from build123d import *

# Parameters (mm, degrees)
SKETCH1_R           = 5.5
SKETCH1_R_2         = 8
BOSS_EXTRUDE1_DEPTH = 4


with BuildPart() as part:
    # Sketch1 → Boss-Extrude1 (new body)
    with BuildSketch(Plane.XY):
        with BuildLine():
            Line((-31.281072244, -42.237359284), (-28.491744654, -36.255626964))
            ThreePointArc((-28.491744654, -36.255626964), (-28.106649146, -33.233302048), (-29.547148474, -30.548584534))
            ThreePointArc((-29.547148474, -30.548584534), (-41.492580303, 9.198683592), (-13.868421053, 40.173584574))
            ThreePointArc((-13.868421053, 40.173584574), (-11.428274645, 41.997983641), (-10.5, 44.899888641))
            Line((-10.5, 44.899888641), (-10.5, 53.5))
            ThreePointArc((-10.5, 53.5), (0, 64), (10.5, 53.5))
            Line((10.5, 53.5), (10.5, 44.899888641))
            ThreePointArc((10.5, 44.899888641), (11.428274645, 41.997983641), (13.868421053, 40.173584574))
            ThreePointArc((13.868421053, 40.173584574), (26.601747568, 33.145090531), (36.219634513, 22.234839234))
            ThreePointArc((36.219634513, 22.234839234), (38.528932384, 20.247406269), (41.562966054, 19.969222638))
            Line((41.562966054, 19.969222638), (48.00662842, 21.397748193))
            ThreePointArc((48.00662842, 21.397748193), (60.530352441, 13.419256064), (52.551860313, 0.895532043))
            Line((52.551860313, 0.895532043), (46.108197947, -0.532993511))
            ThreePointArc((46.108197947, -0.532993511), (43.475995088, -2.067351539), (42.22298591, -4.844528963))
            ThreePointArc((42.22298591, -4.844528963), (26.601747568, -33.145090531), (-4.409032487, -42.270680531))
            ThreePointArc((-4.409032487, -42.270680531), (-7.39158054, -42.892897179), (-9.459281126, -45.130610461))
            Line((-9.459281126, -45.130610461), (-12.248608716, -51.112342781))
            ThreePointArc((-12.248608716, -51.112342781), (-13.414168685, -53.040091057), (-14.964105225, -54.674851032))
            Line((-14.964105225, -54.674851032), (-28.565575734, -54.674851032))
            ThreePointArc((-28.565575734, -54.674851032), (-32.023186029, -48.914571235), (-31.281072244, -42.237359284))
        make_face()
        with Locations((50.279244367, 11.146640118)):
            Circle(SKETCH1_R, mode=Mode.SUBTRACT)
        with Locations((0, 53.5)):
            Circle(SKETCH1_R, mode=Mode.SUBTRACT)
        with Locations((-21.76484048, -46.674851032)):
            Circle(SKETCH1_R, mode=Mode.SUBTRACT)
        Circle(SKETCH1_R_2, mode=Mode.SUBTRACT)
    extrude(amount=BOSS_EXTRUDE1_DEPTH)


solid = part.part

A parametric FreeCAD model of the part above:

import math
import FreeCAD as App
import Part
import Sketcher
Q = App.Units.Quantity

doc = App.newDocument("Part")
body = doc.addObject("PartDesign::Body", "Body")

# Sketch on XY plane
sketch1 = body.newObject("Sketcher::SketchObject", "Sketch")
sketch1.AttachmentSupport = (doc.getObject("XY_Plane"), [""])
sketch1.MapMode = "FlatFace"
sketch1.addGeometry([
    Part.LineSegment(App.Vector(-28.5, -36.3, 0), App.Vector(-31.3, -42.2, 0)),  # 0
    Part.ArcOfCircle(Part.Circle(App.Vector(-21.8, -46.7, 0), App.Vector(0, 0, 1), 10.5), math.radians(155), math.radians(230)),  # 1
    Part.LineSegment(App.Vector(-28.6, -54.7, 0), App.Vector(-15, -54.7, 0)),  # 2
    Part.ArcOfCircle(Part.Circle(App.Vector(-21.8, -46.7, 0), App.Vector(0, 0, 1), 10.5), math.radians(-50), math.radians(-25)),  # 3
    Part.LineSegment(App.Vector(-12.2, -51.1, 0), App.Vector(-9.5, -45.1, 0)),  # 4
    Part.ArcOfCircle(Part.Circle(App.Vector(-4.9, -47.2, 0), App.Vector(0, 0, 1), 5), math.radians(84), math.radians(155)),  # 5
    Part.ArcOfCircle(Part.Circle(App.Vector(0, 0, 0), App.Vector(0, 0, 1), 42.5), math.radians(-96), math.radians(-7)),  # 6
    Part.ArcOfCircle(Part.Circle(App.Vector(47.2, -5.4, 0), App.Vector(0, 0, 1), 5), math.radians(103), math.radians(173)),  # 7
    Part.LineSegment(App.Vector(46.1, -0.5, 0), App.Vector(52.6, 0.9, 0)),  # 8
    Part.ArcOfCircle(Part.Circle(App.Vector(50.3, 11.1, 0), App.Vector(0, 0, 1), 10.5), math.radians(-77), math.radians(102)),  # 9
    Part.LineSegment(App.Vector(48, 21.4, 0), App.Vector(41.6, 20, 0)),  # 10
    Part.ArcOfCircle(Part.Circle(App.Vector(40.5, 24.9, 0), App.Vector(0, 0, 1), 5), math.radians(-148), math.radians(-77)),  # 11
    Part.ArcOfCircle(Part.Circle(App.Vector(0, 0, 0), App.Vector(0, 0, 1), 42.5), math.radians(32), math.radians(71)),  # 12
    Part.ArcOfCircle(Part.Circle(App.Vector(15.5, 44.9, 0), App.Vector(0, 0, 1), 5), math.radians(-180), math.radians(-109)),  # 13
    Part.LineSegment(App.Vector(10.5, 44.9, 0), App.Vector(10.5, 53.5, 0)),  # 14
    Part.ArcOfCircle(Part.Circle(App.Vector(0, 53.5, 0), App.Vector(0, 0, 1), 10.5), math.radians(0), math.radians(180)),  # 15
    Part.LineSegment(App.Vector(-10.5, 53.5, 0), App.Vector(-10.5, 44.9, 0)),  # 16
    Part.ArcOfCircle(Part.Circle(App.Vector(-15.5, 44.9, 0), App.Vector(0, 0, 1), 5), math.radians(-71), math.radians(0)),  # 17
    Part.ArcOfCircle(Part.Circle(App.Vector(0, 0, 0), App.Vector(0, 0, 1), 42.5), math.radians(109), math.radians(226)),  # 18
    Part.ArcOfCircle(Part.Circle(App.Vector(-33, -34.1, 0), App.Vector(0, 0, 1), 5), math.radians(-25), math.radians(46)),  # 19
    Part.Circle(App.Vector(-21.8, -46.7, 0), App.Vector(0, 0, 1), 5.5),  # 20
    Part.Circle(App.Vector(0, 0, 0), App.Vector(0, 0, 1), 8),  # 21
    Part.Circle(App.Vector(50.3, 11.1, 0), App.Vector(0, 0, 1), 5.5),  # 22
    Part.Circle(App.Vector(0, 53.5, 0), App.Vector(0, 0, 1), 5.5),  # 23
], False)
sketch1.addConstraint([
    Sketcher.Constraint("Tangent", 0, 2, 1, 1),
    Sketcher.Constraint("Coincident", 1, 2, 2, 1),
    Sketcher.Constraint("Coincident", 2, 2, 3, 1),
    Sketcher.Constraint("Tangent", 3, 2, 4, 1),
    Sketcher.Constraint("Tangent", 4, 2, 5, 2),
    Sketcher.Constraint("Tangent", 5, 1, 6, 1),
    Sketcher.Constraint("Tangent", 6, 2, 7, 2),
    Sketcher.Constraint("Tangent", 7, 1, 8, 1),
    Sketcher.Constraint("Tangent", 8, 2, 9, 1),
    Sketcher.Constraint("Tangent", 9, 2, 10, 1),
    Sketcher.Constraint("Tangent", 10, 2, 11, 2),
    Sketcher.Constraint("Tangent", 11, 1, 12, 1),
    Sketcher.Constraint("Tangent", 12, 2, 13, 2),
    Sketcher.Constraint("Tangent", 13, 1, 14, 1),
    Sketcher.Constraint("Tangent", 14, 2, 15, 1),
    Sketcher.Constraint("Tangent", 15, 2, 16, 1),
    Sketcher.Constraint("Tangent", 16, 2, 17, 2),
    Sketcher.Constraint("Tangent", 17, 1, 18, 1),
    Sketcher.Constraint("Tangent", 18, 2, 19, 2),
    Sketcher.Constraint("Tangent", 19, 1, 0, 1),
    Sketcher.Constraint("Horizontal", 2),
    Sketcher.Constraint("Vertical", 14),
    Sketcher.Constraint("Vertical", 16),
    Sketcher.Constraint("Coincident", 6, 3, -1, 1),
    Sketcher.Constraint("Coincident", 12, 3, -1, 1),
    Sketcher.Constraint("Coincident", 18, 3, -1, 1),
    Sketcher.Constraint("Coincident", 21, 3, -1, 1),
    Sketcher.Constraint("Coincident", 3, 3, 1, 3),
    Sketcher.Constraint("Coincident", 20, 3, 1, 3),
    Sketcher.Constraint("Coincident", 22, 3, 9, 3),
    Sketcher.Constraint("Coincident", 23, 3, 15, 3),
    Sketcher.Constraint("Equal", 1, 3),
    Sketcher.Constraint("Equal", 5, 7),
    Sketcher.Constraint("Equal", 3, 9),
    Sketcher.Constraint("Equal", 7, 11),
    Sketcher.Constraint("Equal", 6, 12),
    Sketcher.Constraint("Equal", 11, 13),
    Sketcher.Constraint("Equal", 9, 15),
    Sketcher.Constraint("Equal", 13, 17),
    Sketcher.Constraint("Equal", 12, 18),
    Sketcher.Constraint("Equal", 17, 19),
    Sketcher.Constraint("Equal", 20, 22),
    Sketcher.Constraint("Equal", 22, 23),
    Sketcher.Constraint("PointOnObject", 15, 3, -2),
    Sketcher.Constraint("Parallel", 0, 4),
    Sketcher.Constraint("Parallel", 8, 10),
    Sketcher.Constraint("Equal", 0, 4),
    Sketcher.Constraint("Equal", 4, 8),
    Sketcher.Constraint("Equal", 8, 10),
    Sketcher.Constraint("Diameter", 20, Q("11 mm")),
    Sketcher.Constraint("Diameter", 21, Q("16 mm")),
    Sketcher.Constraint("Radius", 5, Q("5 mm")),
    Sketcher.Constraint("Radius", 1, Q("10.5 mm")),
    Sketcher.Constraint("Radius", 6, Q("42.5 mm")),
    Sketcher.Constraint("Angle", 0, Q("-115 deg")),
    Sketcher.Constraint("Angle", 8, Q("12.5 deg")),
    Sketcher.Constraint("DistanceY", 1, 2, 3, 3, Q("8 mm")),
    Sketcher.Constraint("DistanceY", -1, 1, 15, 3, Q("53.5 mm")),
    Sketcher.Constraint("DistanceX", 1, 3, 5, 3, Q("16.837098 mm")),
])
pad1 = body.newObject("PartDesign::Pad", "Pad")
pad1.Profile = sketch1
pad1.Length = 4

doc.recompute()
